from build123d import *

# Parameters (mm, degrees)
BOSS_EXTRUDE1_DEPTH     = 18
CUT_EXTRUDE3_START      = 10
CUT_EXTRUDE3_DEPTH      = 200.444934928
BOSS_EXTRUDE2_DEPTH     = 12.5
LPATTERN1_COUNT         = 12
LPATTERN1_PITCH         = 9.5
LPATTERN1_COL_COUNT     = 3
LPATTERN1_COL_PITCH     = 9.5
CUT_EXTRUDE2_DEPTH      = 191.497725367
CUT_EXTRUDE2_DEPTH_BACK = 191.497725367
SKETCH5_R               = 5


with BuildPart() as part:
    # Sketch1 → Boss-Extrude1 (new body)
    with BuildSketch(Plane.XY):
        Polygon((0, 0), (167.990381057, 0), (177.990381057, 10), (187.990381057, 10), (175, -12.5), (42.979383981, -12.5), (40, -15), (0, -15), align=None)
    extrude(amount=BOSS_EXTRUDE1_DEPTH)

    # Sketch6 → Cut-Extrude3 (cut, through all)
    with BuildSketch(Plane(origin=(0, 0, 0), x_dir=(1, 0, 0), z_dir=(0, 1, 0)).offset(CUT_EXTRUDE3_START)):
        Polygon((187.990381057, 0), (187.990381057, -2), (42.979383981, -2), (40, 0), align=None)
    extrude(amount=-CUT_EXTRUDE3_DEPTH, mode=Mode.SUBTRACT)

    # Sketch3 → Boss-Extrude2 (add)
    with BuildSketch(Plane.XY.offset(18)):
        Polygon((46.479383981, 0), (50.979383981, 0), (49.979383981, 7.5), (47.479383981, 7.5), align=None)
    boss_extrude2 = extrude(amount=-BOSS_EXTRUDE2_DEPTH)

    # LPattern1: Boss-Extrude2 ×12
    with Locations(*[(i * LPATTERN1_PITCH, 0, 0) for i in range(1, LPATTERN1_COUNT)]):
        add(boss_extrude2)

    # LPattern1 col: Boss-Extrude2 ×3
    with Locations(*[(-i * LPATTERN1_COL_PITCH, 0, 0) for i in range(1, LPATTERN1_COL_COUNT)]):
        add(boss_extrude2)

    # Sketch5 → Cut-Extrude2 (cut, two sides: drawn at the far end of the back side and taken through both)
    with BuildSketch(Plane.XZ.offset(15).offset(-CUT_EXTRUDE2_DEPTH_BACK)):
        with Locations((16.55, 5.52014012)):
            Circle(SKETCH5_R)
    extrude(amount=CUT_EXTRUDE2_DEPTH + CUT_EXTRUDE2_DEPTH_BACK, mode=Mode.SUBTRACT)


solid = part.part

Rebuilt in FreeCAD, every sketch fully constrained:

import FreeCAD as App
import Part
import Sketcher
Q = App.Units.Quantity

doc = App.newDocument("Part")
params = doc.addObject("Spreadsheet::Sheet", "Params")
for row, (alias, value) in enumerate([
    ("sketch1_width", "40 mm"),
    ("sketch1_width2", "10 mm"),
    ("sketch1_height", "15 mm"),
    ("pad1_length", "18 mm"),
    ("sketch2_height", "2 mm"),
    ("sketch3_width", "4.5 mm"),
    ("sketch3_width2", "2.5 mm"),
    ("pad2_length", "12.5 mm"),
    ("linearpattern_pitch", "9.5 mm"),
    ("linearpattern2_pitch", "9.5 mm"),
    ("sketch4_diameter", "10 mm"),
], start=1):
    params.set(f"A{row}", alias)
    params.set(f"B{row}", "=" + value)
    params.setAlias(f"B{row}", alias)

body = doc.addObject("PartDesign::Body", "Body")

sketch1 = doc.addObject("Sketcher::SketchObject", "Sketch")
body.addObject(sketch1)
sketch1.AttachmentSupport = (doc.XY_Plane, [""])
sketch1.MapMode = "FlatFace"
sketch1.addGeometry([
    Part.LineSegment(App.Vector(167.990381, 0, 0), App.Vector(0, 0, 0)),
    Part.LineSegment(App.Vector(0, 0, 0), App.Vector(0, -15, 0)),
    Part.LineSegment(App.Vector(0, -15, 0), App.Vector(40, -15, 0)),
    Part.LineSegment(App.Vector(40, -15, 0), App.Vector(42.979384, -12.5, 0)),
    Part.LineSegment(App.Vector(42.979384, -12.5, 0), App.Vector(175, -12.5, 0)),
    Part.LineSegment(App.Vector(175, -12.5, 0), App.Vector(187.990381, 10, 0)),
    Part.LineSegment(App.Vector(187.990381, 10, 0), App.Vector(177.990381, 10, 0)),
    Part.LineSegment(App.Vector(177.990381, 10, 0), App.Vector(167.990381, 0, 0)),
], False)
sketch1.addConstraint([
    Sketcher.Constraint("Coincident", 0, 2, 1, 1),
    Sketcher.Constraint("Coincident", 1, 2, 2, 1),
    Sketcher.Constraint("Coincident", 2, 2, 3, 1),
    Sketcher.Constraint("Coincident", 3, 2, 4, 1),
    Sketcher.Constraint("Coincident", 4, 2, 5, 1),
    Sketcher.Constraint("Coincident", 5, 2, 6, 1),
    Sketcher.Constraint("Coincident", 6, 2, 7, 1),
    Sketcher.Constraint("Coincident", 7, 2, 0, 1),
    Sketcher.Constraint("Horizontal", 0),
    Sketcher.Constraint("Vertical", 1),
    Sketcher.Constraint("Horizontal", 2),
    Sketcher.Constraint("Horizontal", 4),
    Sketcher.Constraint("Horizontal", 6),
    Sketcher.Constraint("Coincident", 0, 2, -1, 1),
    Sketcher.Constraint("DistanceX", 2, 1, 2, 2, Q("40 mm")),
    Sketcher.Constraint("DistanceX", 6, 2, 6, 1, Q("10 mm")),
    Sketcher.Constraint("DistanceY", 1, 2, 1, 1, Q("15 mm")),
    Sketcher.Constraint("Angle", 3, Q("40 deg")),
    Sketcher.Constraint("Angle", 5, Q("60 deg")),
    Sketcher.Constraint("Angle", 7, Q("-135 deg")),
    Sketcher.Constraint("DistanceX", -1, 1, 4, 2, Q("175 mm")),
    Sketcher.Constraint("DistanceY", -1, 1, 5, 2, Q("10 mm")),
    Sketcher.Constraint("DistanceY", 3, 2, -1, 1, Q("12.5 mm")),
])
sketch1.setExpression("Constraints[14]", "Params.sketch1_width")
sketch1.setExpression("Constraints[15]", "Params.sketch1_width2")
sketch1.setExpression("Constraints[16]", "Params.sketch1_height")
pad1 = doc.addObject("PartDesign::Pad", "Pad")
body.addObject(pad1)
pad1.Profile = sketch1
pad1.setExpression("Length", "Params.pad1_length")

sketch2 = doc.addObject("Sketcher::SketchObject", "Sketch001")
body.addObject(sketch2)
sketch2.AttachmentSupport = (doc.XZ_Plane, [""])
sketch2.MapMode = "FlatFace"
sketch2.AttachmentOffset = App.Placement(App.Vector(0, 0, -10), App.Rotation())
sketch2.addGeometry([
    Part.LineSegment(App.Vector(187.990381, 2, 0), App.Vector(187.990381, 0, 0)),
    Part.LineSegment(App.Vector(187.990381, 0, 0), App.Vector(40, 0, 0)),
    Part.LineSegment(App.Vector(40, 0, 0), App.Vector(42.979384, 2, 0)),
    Part.LineSegment(App.Vector(42.979384, 2, 0), App.Vector(187.990381, 2, 0)),
], False)
sketch2.addConstraint([
    Sketcher.Constraint("Coincident", 0, 2, 1, 1),
    Sketcher.Constraint("Coincident", 1, 2, 2, 1),
    Sketcher.Constraint("Coincident", 2, 2, 3, 1),
    Sketcher.Constraint("Coincident", 3, 2, 0, 1),
    Sketcher.Constraint("Vertical", 0),
    Sketcher.Constraint("Horizontal", 1),
    Sketcher.Constraint("Horizontal", 3),
    Sketcher.Constraint("PointOnObject", 0, 2, -1),
    Sketcher.Constraint("DistanceY", 0, 2, 0, 1, Q("2 mm")),
    Sketcher.Constraint("DistanceX", -1, 1, 1, 2, Q("40 mm")),
    Sketcher.Constraint("DistanceX", 1, 2, 1, 1, Q("147.990381 mm")),
    Sketcher.Constraint("DistanceX", 3, 1, 3, 2, Q("145.010997 mm")),
])
sketch2.setExpression("Constraints[8]", "Params.sketch2_height")
pocket1 = doc.addObject("PartDesign::Pocket", "Pocket")
body.addObject(pocket1)
pocket1.Profile = sketch2
pocket1.Type = "ThroughAll"
pocket1.Reversed = True

sketch3 = doc.addObject("Sketcher::SketchObject", "Sketch002")
body.addObject(sketch3)
sketch3.AttachmentSupport = (doc.XY_Plane, [""])
sketch3.MapMode = "FlatFace"
sketch3.AttachmentOffset = App.Placement(App.Vector(0, 0, 18), App.Rotation())
sketch3.addGeometry([
    Part.LineSegment(App.Vector(46.479384, 0, 0), App.Vector(50.979384, 0, 0)),
    Part.LineSegment(App.Vector(50.979384, 0, 0), App.Vector(49.979384, 7.5, 0)),
    Part.LineSegment(App.Vector(49.979384, 7.5, 0), App.Vector(47.479384, 7.5, 0)),
    Part.LineSegment(App.Vector(47.479384, 7.5, 0), App.Vector(46.479384, 0, 0)),
], False)
sketch3.addConstraint([
    Sketcher.Constraint("Coincident", 0, 2, 1, 1),
    Sketcher.Constraint("Coincident", 1, 2, 2, 1),
    Sketcher.Constraint("Coincident", 2, 2, 3, 1),
    Sketcher.Constraint("Coincident", 3, 2, 0, 1),
    Sketcher.Constraint("Horizontal", 0),
    Sketcher.Constraint("Horizontal", 2),
    Sketcher.Constraint("PointOnObject", 0, 2, -1),
    Sketcher.Constraint("Equal", 1, 3),
    Sketcher.Constraint("DistanceX", 0, 1, 0, 2, Q("4.5 mm")),
    Sketcher.Constraint("DistanceX", 2, 2, 2, 1, Q("2.5 mm")),
    Sketcher.Constraint("DistanceY", -1, 1, 1, 2, Q("7.5 mm")),
    Sketcher.Constraint("DistanceX", -1, 1, 0, 2, Q("50.979384 mm")),
])
sketch3.setExpression("Constraints[8]", "Params.sketch3_width")
sketch3.setExpression("Constraints[9]", "Params.sketch3_width2")
pad2 = doc.addObject("PartDesign::Pad", "Pad001")
body.addObject(pad2)
pad2.Profile = sketch3
pad2.setExpression("Length", "Params.pad2_length")
pad2.Reversed = True
doc.recompute()

linearpattern = doc.addObject("PartDesign::LinearPattern", "LinearPattern")
body.addObject(linearpattern)
linearpattern.Originals = [pad2]
linearpattern.Direction = (doc.X_Axis, [""])
linearpattern.Mode = "offset"
linearpattern.setExpression("Offset", "Params.linearpattern_pitch")
linearpattern.Occurrences = 12
body.Tip = linearpattern
doc.recompute()

linearpattern2 = doc.addObject("PartDesign::LinearPattern", "LinearPattern001")
body.addObject(linearpattern2)
linearpattern2.Originals = [pad2]
linearpattern2.Direction = (doc.X_Axis, [""])
linearpattern2.Mode = "offset"
linearpattern2.setExpression("Offset", "Params.linearpattern2_pitch")
linearpattern2.Occurrences = 3
linearpattern2.Reversed = True
body.Tip = linearpattern2

sketch4 = doc.addObject("Sketcher::SketchObject", "Sketch003")
body.addObject(sketch4)
sketch4.AttachmentSupport = (doc.XZ_Plane, [""])
sketch4.MapMode = "FlatFace"
sketch4.AttachmentOffset = App.Placement(App.Vector(0, 0, 15), App.Rotation())
sketch4.addGeometry(Part.Circle(App.Vector(16.55, 5.52014, 0), App.Vector(0, 0, 1), 5), False)
sketch4.addConstraint([
    Sketcher.Constraint("Diameter", 0, Q("10 mm")),
    Sketcher.Constraint("DistanceX", -1, 1, 0, 3, Q("16.55 mm")),
    Sketcher.Constraint("DistanceY", -1, 1, 0, 3, Q("5.52014 mm")),
])
sketch4.setExpression("Constraints[0]", "Params.sketch4_diameter")
pocket2 = doc.addObject("PartDesign::Pocket", "Pocket001")
body.addObject(pocket2)
pocket2.Profile = sketch4
pocket2.Type = "ThroughAll"
pocket2.Midplane = True

doc.recompute()
